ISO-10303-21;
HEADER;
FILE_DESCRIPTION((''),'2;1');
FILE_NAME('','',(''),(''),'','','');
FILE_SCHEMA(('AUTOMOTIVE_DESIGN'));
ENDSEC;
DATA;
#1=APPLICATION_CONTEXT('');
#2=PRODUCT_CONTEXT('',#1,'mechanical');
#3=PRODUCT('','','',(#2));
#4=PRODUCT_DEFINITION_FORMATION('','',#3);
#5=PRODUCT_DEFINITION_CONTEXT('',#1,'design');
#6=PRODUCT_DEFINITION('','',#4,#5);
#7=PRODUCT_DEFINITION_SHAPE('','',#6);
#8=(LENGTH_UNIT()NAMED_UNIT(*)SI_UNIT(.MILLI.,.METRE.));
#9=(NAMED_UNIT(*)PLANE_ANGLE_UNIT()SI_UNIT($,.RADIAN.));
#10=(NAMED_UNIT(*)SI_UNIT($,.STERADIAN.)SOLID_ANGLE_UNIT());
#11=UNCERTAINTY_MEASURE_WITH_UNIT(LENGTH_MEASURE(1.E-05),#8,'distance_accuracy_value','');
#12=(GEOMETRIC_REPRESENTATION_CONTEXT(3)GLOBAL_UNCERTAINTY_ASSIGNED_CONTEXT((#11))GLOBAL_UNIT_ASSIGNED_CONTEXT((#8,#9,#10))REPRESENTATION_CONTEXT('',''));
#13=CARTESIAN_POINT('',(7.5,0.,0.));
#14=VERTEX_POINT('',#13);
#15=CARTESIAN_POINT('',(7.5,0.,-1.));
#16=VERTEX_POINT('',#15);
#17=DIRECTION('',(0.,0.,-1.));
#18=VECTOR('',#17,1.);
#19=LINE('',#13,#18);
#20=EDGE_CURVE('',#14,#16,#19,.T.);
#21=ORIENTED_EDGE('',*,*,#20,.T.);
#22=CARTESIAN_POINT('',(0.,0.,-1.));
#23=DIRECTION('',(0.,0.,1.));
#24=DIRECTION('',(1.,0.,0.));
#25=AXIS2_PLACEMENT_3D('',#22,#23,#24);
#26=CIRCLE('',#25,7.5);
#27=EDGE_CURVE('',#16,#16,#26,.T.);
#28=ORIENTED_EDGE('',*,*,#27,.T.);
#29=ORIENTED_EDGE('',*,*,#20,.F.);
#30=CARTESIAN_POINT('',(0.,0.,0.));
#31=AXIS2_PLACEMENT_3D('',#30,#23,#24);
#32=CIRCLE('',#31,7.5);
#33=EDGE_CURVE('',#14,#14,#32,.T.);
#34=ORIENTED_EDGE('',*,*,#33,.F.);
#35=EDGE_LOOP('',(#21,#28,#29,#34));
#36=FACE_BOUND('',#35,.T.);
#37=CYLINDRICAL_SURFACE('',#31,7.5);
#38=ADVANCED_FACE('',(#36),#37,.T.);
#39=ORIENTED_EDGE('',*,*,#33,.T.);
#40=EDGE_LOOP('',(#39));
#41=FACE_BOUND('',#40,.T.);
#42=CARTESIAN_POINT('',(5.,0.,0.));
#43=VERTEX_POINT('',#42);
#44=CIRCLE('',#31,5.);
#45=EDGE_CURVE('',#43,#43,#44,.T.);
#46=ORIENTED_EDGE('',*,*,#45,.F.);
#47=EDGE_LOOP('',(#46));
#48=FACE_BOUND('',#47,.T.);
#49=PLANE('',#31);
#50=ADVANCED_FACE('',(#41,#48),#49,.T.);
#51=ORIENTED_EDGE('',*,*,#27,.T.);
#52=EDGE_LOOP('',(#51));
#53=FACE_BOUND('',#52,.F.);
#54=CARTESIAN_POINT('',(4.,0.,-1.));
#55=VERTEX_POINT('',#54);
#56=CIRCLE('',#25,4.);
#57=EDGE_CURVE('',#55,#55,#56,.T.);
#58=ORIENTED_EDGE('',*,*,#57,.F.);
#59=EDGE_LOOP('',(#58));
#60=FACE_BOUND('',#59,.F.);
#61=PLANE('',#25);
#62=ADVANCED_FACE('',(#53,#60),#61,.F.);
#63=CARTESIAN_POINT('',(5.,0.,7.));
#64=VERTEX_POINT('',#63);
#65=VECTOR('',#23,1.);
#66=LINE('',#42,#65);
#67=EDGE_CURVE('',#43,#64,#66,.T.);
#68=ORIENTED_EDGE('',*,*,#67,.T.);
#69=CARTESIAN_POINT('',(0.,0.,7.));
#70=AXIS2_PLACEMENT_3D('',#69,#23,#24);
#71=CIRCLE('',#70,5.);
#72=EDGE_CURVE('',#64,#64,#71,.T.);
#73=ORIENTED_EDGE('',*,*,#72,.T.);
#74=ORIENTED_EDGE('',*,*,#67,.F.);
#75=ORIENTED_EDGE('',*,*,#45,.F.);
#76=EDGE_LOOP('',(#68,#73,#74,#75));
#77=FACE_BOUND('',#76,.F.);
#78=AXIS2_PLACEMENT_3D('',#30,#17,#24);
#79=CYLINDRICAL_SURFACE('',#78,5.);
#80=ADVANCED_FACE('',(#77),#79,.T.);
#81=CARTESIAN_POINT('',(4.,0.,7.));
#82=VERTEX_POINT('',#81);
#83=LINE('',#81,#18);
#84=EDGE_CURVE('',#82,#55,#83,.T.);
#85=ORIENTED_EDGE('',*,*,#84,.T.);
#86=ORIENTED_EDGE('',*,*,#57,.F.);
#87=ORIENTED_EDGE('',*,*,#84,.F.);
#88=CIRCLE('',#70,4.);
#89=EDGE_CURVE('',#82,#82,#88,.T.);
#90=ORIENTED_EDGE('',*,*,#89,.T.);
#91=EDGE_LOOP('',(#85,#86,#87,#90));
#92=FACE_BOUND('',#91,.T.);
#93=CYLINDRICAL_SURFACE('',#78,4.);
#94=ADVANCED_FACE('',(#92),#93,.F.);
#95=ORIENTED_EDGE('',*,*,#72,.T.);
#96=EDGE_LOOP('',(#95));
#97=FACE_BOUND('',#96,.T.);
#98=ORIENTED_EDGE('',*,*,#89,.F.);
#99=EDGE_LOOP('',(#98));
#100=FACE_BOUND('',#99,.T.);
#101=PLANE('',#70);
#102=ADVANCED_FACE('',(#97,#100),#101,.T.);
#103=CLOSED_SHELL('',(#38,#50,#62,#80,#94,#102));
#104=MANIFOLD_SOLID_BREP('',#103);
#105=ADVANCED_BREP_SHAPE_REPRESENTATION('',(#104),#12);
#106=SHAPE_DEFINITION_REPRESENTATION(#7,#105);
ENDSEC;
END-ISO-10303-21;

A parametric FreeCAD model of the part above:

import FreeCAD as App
import Part
import Sketcher
from FreeCAD import Vector
Q = App.Units.Quantity

doc = App.newDocument("Part")
body = doc.addObject("PartDesign::Body", "Body")

# Sketch on XY plane
sketch1 = body.newObject("Sketcher::SketchObject", "Sketch")
sketch1.AttachmentSupport = (doc.getObject("XY_Plane"), [""])
sketch1.MapMode = "FlatFace"
sketch1.addGeometry([
    Part.Circle(Vector(0, 0, 0), Vector(0, 0, 1), 5),
    Part.Circle(Vector(0, 0, 0), Vector(0, 0, 1), 4),
], False)
sketch1.addConstraint([
    Sketcher.Constraint("Coincident", 0, 3, -1, 1),
    Sketcher.Constraint("Coincident", 1, 3, -1, 1),
    Sketcher.Constraint("Diameter", 0, Q("10 mm")),
    Sketcher.Constraint("Diameter", 1, Q("8 mm")),
])
pad1 = body.newObject("PartDesign::Pad", "Pad")
pad1.Profile = sketch1
pad1.Length = 7

# Sketch on XY plane
sketch2 = body.newObject("Sketcher::SketchObject", "Sketch001")
sketch2.AttachmentSupport = (doc.getObject("XY_Plane"), [""])
sketch2.MapMode = "FlatFace"
sketch2.addGeometry([
    Part.Circle(Vector(0, 0, 0), Vector(0, 0, 1), 7.5),
    Part.Circle(Vector(0, 0, 0), Vector(0, 0, 1), 4),
], False)
sketch2.addConstraint([
    Sketcher.Constraint("Coincident", 0, 3, -1, 1),
    Sketcher.Constraint("Coincident", 1, 3, -1, 1),
    Sketcher.Constraint("Diameter", 0, Q("15 mm")),
    Sketcher.Constraint("Diameter", 1, Q("8 mm")),
])
pad2 = body.newObject("PartDesign::Pad", "Pad001")
pad2.Profile = sketch2
pad2.Length = 1
pad2.Reversed = True

doc.recompute()
